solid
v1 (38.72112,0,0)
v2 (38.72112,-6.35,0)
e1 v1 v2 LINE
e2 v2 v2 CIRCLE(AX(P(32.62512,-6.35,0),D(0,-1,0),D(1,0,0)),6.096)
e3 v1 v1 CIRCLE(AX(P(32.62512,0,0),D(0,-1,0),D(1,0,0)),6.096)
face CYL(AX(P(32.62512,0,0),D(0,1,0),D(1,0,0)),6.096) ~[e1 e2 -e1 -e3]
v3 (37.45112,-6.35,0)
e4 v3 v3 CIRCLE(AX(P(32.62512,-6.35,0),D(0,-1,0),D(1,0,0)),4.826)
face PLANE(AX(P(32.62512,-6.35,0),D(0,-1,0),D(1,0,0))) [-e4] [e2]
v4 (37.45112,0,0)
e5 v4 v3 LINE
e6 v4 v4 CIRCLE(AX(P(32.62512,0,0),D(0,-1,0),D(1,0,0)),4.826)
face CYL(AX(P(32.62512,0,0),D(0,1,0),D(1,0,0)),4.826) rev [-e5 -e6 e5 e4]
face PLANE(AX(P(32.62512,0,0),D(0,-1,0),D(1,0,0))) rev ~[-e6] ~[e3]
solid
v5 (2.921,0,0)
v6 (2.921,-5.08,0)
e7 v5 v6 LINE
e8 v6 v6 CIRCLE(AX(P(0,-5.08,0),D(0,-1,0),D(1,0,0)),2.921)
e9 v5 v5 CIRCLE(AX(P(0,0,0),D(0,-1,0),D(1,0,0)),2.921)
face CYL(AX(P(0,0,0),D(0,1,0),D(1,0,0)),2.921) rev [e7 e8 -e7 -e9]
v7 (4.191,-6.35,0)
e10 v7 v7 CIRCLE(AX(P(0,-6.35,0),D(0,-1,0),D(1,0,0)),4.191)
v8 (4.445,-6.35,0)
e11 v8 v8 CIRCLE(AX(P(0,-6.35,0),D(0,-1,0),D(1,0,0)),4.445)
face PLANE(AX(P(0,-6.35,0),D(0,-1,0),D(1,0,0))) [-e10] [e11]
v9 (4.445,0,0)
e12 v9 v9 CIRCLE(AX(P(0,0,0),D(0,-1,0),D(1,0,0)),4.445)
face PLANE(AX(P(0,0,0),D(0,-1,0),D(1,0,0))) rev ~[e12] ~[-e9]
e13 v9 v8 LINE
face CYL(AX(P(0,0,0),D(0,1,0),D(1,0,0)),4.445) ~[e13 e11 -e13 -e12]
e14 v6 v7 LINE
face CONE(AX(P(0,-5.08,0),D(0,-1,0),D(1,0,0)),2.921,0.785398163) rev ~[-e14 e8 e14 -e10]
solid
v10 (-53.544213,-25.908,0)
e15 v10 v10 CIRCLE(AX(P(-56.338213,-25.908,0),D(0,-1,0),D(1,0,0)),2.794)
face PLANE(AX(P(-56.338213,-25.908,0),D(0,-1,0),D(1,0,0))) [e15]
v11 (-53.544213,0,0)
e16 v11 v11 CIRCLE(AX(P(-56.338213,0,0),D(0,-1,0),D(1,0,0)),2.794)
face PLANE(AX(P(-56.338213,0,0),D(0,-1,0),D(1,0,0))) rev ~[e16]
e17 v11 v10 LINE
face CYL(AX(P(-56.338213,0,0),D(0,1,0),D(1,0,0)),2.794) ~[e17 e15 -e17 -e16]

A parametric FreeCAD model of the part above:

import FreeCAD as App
import Part
import Sketcher
from FreeCAD import Vector
Q = App.Units.Quantity


def edges_at(feature, points):
    """Names of the edges that pass closest to the given points."""
    edges = feature.Shape.Edges
    near = lambda p: min(range(len(edges)), key=lambda i: edges[i].distToShape(Part.Vertex(*p))[0])
    return sorted({f"Edge{near(p) + 1}" for p in points})

doc = App.newDocument("Part")
body = doc.addObject("PartDesign::Body", "Body")

sketch1 = doc.addObject("Sketcher::SketchObject", "Sketch")
body.addObject(sketch1)
sketch1.AttachmentSupport = (doc.XZ_Plane, [""])
sketch1.MapMode = "FlatFace"
sketch1.addGeometry(Part.Circle(Vector(0, 0, 0), Vector(0, 0, 1), 4.445), False)
sketch1.addGeometry(Part.Circle(Vector(0, 0, 0), Vector(0, 0, 1), 2.921), False)
sketch1.addConstraint(Sketcher.Constraint("Coincident", 0, 3, -1, 1))
sketch1.addConstraint(Sketcher.Constraint("Coincident", 1, 3, -1, 1))
sketch1.addConstraint(Sketcher.Constraint("Diameter", 0, Q("0.35 in")))
sketch1.addConstraint(Sketcher.Constraint("Diameter", 1, Q("0.23 in")))
pad1 = doc.addObject("PartDesign::Pad", "Pad")
body.addObject(pad1)
pad1.Profile = sketch1
pad1.Length = Q("0.25 in")
doc.recompute()

chamfer = doc.addObject("PartDesign::Chamfer", "Chamfer")
body.addObject(chamfer)
chamfer.Base = (pad1, edges_at(pad1, [(-2.921, -6.35, 0)]))
chamfer.Size = Q("0.05 in")
body2 = doc.addObject("PartDesign::Body", "Body001")

sketch2 = doc.addObject("Sketcher::SketchObject", "Sketch001")
body2.addObject(sketch2)
sketch2.AttachmentSupport = (doc.getObject("XZ_Plane001"), [""])
sketch2.MapMode = "FlatFace"
sketch2.addGeometry(Part.Circle(Vector(32.62512, 0, 0), Vector(0, 0, 1), 6.096), False)
sketch2.addGeometry(Part.Circle(Vector(32.62512, 0, 0), Vector(0, 0, 1), 4.826), False)
sketch2.addConstraint(Sketcher.Constraint("Coincident", 1, 3, 0, 3))
sketch2.addConstraint(Sketcher.Constraint("PointOnObject", 0, 3, -1))
sketch2.addConstraint(Sketcher.Constraint("Diameter", 0, Q("0.48 in")))
sketch2.addConstraint(Sketcher.Constraint("Diameter", 1, Q("0.38 in")))
sketch2.addConstraint(Sketcher.Constraint("DistanceX", -1, 1, 0, 3, 32.62512))
pad2 = doc.addObject("PartDesign::Pad", "Pad001")
body2.addObject(pad2)
pad2.Profile = sketch2
pad2.Length = Q("0.25 in")
body3 = doc.addObject("PartDesign::Body", "Body002")

sketch3 = doc.addObject("Sketcher::SketchObject", "Sketch002")
body3.addObject(sketch3)
sketch3.AttachmentSupport = (doc.getObject("XZ_Plane002"), [""])
sketch3.MapMode = "FlatFace"
sketch3.addGeometry(Part.Circle(Vector(-56.338213, 0, 0), Vector(0, 0, 1), 2.794), False)
sketch3.addConstraint(Sketcher.Constraint("PointOnObject", 0, 3, -1))
sketch3.addConstraint(Sketcher.Constraint("Diameter", 0, Q("0.22 in")))
sketch3.addConstraint(Sketcher.Constraint("DistanceX", 0, 3, -1, 1, 56.338213))
pad3 = doc.addObject("PartDesign::Pad", "Pad002")
body3.addObject(pad3)
pad3.Profile = sketch3
pad3.Length = Q("1.02 in")

doc.recompute()
